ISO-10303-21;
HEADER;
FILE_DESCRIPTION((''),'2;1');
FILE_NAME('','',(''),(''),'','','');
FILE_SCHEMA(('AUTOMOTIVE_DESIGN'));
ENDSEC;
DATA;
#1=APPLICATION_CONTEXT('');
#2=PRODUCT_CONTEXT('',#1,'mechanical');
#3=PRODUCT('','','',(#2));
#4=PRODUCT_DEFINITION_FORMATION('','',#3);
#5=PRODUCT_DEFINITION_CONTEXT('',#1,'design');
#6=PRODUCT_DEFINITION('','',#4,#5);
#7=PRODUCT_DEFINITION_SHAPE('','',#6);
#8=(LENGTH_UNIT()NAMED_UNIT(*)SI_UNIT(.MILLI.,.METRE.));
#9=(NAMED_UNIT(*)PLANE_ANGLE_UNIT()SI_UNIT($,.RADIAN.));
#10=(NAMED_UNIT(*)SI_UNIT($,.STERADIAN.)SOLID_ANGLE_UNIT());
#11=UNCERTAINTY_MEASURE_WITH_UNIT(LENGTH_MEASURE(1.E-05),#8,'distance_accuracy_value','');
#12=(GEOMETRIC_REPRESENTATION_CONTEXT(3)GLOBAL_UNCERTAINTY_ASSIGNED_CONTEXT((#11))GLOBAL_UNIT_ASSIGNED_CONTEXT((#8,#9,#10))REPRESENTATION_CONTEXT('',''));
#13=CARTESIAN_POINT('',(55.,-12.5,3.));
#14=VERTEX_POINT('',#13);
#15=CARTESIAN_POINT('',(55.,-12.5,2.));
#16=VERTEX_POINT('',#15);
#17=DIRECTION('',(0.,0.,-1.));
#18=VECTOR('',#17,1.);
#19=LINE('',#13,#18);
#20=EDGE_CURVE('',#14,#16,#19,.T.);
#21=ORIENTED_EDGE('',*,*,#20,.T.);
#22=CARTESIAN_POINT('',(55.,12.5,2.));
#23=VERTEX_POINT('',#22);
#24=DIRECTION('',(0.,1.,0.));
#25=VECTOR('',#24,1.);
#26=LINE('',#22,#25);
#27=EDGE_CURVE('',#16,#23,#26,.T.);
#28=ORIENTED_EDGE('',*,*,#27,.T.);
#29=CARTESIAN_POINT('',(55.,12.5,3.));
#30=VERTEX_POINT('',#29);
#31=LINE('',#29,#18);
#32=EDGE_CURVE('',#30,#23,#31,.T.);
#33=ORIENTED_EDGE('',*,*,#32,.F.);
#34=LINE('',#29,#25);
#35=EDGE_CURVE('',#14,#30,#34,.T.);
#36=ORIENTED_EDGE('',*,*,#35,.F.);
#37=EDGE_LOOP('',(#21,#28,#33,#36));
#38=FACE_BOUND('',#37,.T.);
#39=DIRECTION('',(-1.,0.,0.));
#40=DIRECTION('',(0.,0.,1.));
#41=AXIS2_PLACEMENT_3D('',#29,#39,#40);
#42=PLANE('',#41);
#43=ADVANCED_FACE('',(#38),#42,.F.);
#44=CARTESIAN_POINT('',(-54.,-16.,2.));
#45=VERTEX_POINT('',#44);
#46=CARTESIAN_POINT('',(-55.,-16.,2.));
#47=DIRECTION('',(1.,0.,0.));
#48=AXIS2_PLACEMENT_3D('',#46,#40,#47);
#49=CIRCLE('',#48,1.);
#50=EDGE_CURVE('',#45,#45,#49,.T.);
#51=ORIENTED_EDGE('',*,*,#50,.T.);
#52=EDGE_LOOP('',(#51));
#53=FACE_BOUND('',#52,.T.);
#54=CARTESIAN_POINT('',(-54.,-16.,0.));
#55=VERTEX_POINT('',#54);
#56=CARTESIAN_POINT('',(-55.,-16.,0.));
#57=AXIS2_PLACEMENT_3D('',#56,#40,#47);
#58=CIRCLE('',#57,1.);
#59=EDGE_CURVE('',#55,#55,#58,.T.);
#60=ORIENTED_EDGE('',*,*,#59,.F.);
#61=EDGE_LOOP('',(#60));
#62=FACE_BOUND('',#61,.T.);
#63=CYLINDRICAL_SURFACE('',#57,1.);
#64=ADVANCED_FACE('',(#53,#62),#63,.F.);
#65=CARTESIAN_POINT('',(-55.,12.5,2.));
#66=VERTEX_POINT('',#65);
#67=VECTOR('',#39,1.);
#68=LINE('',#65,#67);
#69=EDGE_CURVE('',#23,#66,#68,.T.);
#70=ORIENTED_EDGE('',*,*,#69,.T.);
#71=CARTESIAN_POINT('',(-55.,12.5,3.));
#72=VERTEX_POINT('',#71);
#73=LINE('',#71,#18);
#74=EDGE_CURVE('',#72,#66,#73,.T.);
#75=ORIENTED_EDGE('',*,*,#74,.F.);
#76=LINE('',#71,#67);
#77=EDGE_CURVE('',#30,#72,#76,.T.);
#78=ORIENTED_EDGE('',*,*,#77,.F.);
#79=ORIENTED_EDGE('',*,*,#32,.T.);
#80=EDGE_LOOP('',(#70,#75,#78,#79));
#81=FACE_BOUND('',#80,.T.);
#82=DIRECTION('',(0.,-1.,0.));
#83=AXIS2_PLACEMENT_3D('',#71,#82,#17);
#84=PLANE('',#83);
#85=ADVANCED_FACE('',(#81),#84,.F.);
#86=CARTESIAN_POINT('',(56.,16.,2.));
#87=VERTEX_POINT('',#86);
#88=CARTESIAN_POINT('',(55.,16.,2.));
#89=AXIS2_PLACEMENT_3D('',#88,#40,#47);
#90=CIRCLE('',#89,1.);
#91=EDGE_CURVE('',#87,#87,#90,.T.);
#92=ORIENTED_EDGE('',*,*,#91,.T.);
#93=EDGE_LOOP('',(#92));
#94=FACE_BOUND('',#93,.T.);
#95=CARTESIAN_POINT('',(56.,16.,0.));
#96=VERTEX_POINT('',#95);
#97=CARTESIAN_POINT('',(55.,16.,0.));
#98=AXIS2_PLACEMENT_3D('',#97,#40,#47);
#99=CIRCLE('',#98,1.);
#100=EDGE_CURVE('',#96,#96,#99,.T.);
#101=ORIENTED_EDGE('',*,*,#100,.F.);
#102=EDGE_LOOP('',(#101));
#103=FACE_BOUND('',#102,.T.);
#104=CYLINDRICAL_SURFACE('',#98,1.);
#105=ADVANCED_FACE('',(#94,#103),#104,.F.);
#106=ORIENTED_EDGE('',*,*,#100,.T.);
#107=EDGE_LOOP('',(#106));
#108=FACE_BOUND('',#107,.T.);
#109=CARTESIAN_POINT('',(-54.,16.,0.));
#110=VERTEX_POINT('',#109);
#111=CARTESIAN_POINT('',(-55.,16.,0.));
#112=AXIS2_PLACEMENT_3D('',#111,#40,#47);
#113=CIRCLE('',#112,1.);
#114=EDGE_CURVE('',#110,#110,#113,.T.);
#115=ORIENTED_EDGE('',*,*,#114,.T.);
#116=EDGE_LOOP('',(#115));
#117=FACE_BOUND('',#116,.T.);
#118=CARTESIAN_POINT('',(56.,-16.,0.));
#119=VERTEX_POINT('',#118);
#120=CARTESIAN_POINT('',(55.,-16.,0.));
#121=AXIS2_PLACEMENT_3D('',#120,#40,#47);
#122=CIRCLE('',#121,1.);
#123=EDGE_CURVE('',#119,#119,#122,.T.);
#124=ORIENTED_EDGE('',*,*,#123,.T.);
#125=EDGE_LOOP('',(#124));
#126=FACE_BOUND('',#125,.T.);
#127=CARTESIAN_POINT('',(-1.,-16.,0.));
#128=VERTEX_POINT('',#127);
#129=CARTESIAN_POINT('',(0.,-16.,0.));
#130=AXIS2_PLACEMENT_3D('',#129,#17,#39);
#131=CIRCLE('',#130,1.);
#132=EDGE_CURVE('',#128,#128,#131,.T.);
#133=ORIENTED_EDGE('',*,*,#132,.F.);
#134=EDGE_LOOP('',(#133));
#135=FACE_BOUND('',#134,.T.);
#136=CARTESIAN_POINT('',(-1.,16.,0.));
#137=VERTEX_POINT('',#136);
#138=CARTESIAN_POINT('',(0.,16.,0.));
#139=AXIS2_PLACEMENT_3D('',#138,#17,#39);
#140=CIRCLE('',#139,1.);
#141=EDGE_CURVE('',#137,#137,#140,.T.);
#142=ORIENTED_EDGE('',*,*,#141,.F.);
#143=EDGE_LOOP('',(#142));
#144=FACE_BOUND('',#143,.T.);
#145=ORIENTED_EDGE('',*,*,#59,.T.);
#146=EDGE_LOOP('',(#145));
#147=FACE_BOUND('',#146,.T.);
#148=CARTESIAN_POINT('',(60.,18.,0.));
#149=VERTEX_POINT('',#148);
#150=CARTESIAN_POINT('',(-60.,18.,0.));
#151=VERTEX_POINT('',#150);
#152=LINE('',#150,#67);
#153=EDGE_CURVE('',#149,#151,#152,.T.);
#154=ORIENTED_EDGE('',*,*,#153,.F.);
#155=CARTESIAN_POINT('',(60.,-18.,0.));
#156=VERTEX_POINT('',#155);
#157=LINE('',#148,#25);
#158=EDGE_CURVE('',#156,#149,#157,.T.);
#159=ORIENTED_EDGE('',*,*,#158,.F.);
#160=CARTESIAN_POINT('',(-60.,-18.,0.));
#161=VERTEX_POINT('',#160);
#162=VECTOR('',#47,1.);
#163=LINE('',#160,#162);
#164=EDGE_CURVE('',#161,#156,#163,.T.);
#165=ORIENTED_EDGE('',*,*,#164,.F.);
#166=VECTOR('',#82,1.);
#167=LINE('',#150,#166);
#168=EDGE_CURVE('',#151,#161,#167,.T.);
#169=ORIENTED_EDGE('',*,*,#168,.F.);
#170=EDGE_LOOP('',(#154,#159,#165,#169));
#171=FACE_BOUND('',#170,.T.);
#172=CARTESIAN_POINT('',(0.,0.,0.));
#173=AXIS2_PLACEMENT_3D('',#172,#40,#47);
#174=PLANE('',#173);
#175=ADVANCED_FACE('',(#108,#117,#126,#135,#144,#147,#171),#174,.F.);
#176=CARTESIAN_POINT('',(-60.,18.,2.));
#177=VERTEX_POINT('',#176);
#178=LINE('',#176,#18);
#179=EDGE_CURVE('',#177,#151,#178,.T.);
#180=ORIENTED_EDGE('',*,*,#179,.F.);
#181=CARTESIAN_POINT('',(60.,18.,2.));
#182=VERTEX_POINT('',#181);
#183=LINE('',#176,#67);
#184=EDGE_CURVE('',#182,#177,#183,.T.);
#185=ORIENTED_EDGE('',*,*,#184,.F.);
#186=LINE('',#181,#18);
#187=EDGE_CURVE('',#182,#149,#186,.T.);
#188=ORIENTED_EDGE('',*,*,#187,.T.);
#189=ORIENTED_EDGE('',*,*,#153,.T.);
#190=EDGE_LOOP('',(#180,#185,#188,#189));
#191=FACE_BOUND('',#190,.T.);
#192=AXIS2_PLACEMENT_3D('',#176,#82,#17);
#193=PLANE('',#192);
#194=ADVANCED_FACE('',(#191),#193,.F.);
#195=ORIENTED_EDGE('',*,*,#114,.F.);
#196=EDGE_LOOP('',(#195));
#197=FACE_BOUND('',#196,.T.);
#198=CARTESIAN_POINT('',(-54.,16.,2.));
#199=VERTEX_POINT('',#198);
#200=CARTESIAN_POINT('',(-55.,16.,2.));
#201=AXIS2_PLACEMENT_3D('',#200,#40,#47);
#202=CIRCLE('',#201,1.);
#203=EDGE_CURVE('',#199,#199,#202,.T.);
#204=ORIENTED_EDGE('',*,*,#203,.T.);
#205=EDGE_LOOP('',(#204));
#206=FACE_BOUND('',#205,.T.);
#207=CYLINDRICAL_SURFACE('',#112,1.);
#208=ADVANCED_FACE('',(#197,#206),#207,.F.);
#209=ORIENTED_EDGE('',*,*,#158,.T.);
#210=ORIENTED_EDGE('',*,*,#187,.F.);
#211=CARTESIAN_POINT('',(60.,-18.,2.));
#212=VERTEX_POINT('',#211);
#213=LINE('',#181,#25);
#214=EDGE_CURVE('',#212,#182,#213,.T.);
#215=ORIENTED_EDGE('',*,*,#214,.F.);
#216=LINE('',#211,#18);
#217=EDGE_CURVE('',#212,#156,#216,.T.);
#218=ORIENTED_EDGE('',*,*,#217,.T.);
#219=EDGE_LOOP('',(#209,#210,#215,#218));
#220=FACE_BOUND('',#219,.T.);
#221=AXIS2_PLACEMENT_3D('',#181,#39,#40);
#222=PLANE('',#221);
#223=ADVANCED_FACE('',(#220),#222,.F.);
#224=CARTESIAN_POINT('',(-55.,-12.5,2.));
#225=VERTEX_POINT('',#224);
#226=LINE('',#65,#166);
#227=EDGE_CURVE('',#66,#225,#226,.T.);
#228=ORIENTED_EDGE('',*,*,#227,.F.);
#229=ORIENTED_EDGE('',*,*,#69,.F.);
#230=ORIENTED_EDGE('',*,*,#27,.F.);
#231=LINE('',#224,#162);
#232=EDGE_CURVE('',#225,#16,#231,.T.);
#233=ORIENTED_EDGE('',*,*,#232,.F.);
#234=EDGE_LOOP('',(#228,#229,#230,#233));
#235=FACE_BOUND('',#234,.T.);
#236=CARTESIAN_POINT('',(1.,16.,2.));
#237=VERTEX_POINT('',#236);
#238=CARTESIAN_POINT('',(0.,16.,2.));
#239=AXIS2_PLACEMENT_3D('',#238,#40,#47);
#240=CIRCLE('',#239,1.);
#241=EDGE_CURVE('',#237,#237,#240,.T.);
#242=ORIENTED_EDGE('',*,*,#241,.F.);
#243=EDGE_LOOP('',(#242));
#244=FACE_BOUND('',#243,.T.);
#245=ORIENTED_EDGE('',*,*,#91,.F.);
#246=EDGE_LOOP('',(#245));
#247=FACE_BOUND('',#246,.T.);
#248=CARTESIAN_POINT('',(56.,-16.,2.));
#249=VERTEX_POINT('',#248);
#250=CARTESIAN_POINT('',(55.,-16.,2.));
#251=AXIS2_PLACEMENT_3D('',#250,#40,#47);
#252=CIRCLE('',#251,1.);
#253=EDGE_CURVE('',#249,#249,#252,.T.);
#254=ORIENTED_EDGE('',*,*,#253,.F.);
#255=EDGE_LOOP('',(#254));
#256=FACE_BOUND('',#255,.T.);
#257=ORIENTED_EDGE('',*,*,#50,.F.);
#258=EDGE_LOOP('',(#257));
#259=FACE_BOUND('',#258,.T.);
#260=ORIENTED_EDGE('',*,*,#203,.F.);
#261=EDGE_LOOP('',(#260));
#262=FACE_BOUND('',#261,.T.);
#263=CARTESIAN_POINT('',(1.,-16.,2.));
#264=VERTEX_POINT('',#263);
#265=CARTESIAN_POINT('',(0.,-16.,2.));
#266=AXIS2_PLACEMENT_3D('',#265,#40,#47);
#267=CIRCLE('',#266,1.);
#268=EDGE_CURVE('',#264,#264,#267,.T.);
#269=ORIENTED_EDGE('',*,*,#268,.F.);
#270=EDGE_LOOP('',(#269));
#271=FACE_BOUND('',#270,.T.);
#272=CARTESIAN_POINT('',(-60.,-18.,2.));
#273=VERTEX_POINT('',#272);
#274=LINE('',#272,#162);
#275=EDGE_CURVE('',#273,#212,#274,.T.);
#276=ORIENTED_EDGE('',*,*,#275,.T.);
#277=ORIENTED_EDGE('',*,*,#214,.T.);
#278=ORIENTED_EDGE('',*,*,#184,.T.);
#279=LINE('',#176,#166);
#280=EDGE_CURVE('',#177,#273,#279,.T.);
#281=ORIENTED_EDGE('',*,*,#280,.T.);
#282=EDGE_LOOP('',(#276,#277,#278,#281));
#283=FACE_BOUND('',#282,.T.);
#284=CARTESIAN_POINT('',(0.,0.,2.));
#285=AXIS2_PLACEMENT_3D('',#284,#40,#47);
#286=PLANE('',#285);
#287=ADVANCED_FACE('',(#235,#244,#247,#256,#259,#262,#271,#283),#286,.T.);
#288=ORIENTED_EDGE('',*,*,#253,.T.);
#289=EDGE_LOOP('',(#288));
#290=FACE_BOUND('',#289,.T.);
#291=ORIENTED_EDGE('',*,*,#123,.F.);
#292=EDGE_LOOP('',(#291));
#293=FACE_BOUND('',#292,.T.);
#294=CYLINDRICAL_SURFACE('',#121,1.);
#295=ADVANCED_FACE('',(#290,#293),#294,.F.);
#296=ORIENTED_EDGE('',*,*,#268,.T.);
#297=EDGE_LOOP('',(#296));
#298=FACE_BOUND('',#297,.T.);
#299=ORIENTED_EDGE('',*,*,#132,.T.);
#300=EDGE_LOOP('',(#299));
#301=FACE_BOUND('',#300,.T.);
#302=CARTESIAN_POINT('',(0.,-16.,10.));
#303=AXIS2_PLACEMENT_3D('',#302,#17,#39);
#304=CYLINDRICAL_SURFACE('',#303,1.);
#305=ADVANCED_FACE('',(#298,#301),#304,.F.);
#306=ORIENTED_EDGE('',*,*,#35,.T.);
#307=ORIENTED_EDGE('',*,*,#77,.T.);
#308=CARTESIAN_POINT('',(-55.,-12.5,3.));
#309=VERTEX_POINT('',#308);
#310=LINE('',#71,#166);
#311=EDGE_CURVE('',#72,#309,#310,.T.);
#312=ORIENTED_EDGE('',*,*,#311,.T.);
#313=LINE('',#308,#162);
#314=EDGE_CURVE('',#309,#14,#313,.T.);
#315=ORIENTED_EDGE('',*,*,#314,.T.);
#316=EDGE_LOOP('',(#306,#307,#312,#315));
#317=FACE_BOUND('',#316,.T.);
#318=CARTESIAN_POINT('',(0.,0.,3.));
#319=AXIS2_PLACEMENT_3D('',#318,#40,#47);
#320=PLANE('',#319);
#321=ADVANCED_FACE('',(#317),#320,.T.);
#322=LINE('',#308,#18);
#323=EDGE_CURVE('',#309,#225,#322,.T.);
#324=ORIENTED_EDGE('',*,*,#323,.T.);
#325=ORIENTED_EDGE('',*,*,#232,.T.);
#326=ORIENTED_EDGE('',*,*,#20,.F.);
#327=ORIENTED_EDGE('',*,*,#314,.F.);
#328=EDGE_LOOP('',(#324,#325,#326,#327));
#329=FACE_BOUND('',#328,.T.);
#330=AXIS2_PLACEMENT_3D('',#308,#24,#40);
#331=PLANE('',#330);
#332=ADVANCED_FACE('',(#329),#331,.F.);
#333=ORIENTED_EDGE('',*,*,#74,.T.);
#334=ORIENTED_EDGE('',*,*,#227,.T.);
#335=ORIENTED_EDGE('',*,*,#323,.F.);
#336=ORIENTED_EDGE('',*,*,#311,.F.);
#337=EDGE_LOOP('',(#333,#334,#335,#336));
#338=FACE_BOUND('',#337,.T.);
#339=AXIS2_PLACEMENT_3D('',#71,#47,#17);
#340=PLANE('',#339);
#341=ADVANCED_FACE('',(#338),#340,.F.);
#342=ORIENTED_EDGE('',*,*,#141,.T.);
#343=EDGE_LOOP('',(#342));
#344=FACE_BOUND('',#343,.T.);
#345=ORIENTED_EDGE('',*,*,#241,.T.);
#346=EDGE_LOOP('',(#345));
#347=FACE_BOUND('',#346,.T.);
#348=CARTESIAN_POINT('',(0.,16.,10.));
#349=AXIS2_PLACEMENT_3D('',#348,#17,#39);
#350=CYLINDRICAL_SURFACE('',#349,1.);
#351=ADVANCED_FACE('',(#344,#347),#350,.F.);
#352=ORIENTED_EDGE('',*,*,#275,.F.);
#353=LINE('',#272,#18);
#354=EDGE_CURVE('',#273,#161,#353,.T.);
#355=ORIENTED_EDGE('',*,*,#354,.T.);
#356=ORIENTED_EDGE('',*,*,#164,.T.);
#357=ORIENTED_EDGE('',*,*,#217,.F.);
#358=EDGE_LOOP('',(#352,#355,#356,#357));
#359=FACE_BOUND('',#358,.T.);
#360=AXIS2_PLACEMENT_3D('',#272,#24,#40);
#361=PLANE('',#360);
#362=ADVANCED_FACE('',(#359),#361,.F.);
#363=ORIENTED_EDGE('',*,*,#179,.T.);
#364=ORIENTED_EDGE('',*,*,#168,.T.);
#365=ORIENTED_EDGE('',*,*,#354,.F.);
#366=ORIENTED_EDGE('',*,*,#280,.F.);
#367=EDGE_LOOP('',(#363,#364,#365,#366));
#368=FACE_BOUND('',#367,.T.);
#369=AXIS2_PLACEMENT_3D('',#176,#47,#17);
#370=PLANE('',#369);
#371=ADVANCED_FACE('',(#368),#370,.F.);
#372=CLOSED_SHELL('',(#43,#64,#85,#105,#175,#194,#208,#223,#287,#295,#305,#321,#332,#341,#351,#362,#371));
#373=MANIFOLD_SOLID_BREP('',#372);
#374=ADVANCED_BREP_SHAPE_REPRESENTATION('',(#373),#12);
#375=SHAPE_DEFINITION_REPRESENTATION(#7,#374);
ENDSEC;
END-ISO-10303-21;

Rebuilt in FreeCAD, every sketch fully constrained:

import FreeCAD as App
import Part
import Sketcher

V = App.Vector


def add_polygon(sketch, points):
    """Adds a closed chain of lines whose ends are joined by coincident constraints."""
    first, n = sketch.GeometryCount, len(points)
    for a, b in zip(points, points[1:] + points[:1]):
        sketch.addGeometry(Part.LineSegment(App.Vector(*a, 0), App.Vector(*b, 0)), False)
    for i in range(n):
        sketch.addConstraint(Sketcher.Constraint("Coincident", first + i, 2, first + (i + 1) % n, 1))

doc = App.newDocument("Part")
body = doc.addObject("PartDesign::Body", "Body")

sketch1 = body.newObject("Sketcher::SketchObject", "Sketch")
sketch1.AttachmentSupport = (doc.getObject("XY_Plane"), [""])
sketch1.MapMode = "FlatFace"
add_polygon(sketch1, [(-60, 18), (-60, -18), (60, -18), (60, 18)])
sketch1.addConstraint([
    Sketcher.Constraint("Vertical", 0),
    Sketcher.Constraint("Horizontal", 1),
    Sketcher.Constraint("Vertical", 2),
    Sketcher.Constraint("Horizontal", 3),
    Sketcher.Constraint("Symmetric", 0, 2, 2, 2, -1, 1),
    Sketcher.Constraint("DistanceX", 1, 1, 1, 2, 120.0),
    Sketcher.Constraint("DistanceY", 0, 2, 0, 1, 36.0),
])
pad1 = body.newObject("PartDesign::Pad", "Pad")
pad1.Profile = sketch1
pad1.Length = 2

sketch2 = body.newObject("Sketcher::SketchObject", "Sketch001")
sketch2.AttachmentSupport = (doc.getObject("XY_Plane"), [""])
sketch2.MapMode = "FlatFace"
sketch2.AttachmentOffset = App.Placement(V(0, 0, 2), App.Rotation())
add_polygon(sketch2, [(-55, 12), (-55, -12), (55, -12), (55, 12)])
sketch2.addConstraint([
    Sketcher.Constraint("Vertical", 0),
    Sketcher.Constraint("Horizontal", 1),
    Sketcher.Constraint("Vertical", 2),
    Sketcher.Constraint("Horizontal", 3),
    Sketcher.Constraint("Symmetric", 0, 2, 2, 2, -1, 1),
    Sketcher.Constraint("DistanceX", 1, 1, 1, 2, 110.0),
    Sketcher.Constraint("DistanceY", 0, 2, 0, 1, 25.0),
])
pad2 = body.newObject("PartDesign::Pad", "Pad001")
pad2.Profile = sketch2
pad2.Length = 1

sketch3 = body.newObject("Sketcher::SketchObject", "Sketch002")
sketch3.AttachmentSupport = (doc.getObject("XY_Plane"), [""])
sketch3.MapMode = "FlatFace"
sketch3.AttachmentOffset = App.Placement(V(0, 0, 2), App.Rotation())
sketch3.addGeometry([
    Part.Circle(V(-55, 16, 0), V(0, 0, 1), 1),
    Part.Circle(V(-55, -16, 0), V(0, 0, 1), 1),
    Part.Circle(V(55, 16, 0), V(0, 0, 1), 1),
    Part.Circle(V(55, -16, 0), V(0, 0, 1), 1),
], False)
sketch3.addConstraint([
    Sketcher.Constraint("Equal", 0, 1),
    Sketcher.Constraint("Equal", 1, 2),
    Sketcher.Constraint("Equal", 2, 3),
    Sketcher.Constraint("Symmetric", 1, 3, 2, 3, -1, 1),
    Sketcher.Constraint("Symmetric", 0, 3, 3, 3, -1, 1),
    Sketcher.Constraint("Symmetric", 0, 3, 2, 3, -2),
    Sketcher.Constraint("Diameter", 0, 2.0),
    Sketcher.Constraint("DistanceX", 0, 3, -1, 1, 55.0),
    Sketcher.Constraint("DistanceY", -1, 1, 0, 3, 16.0),
])
pocket1 = body.newObject("PartDesign::Pocket", "Pocket")
pocket1.Profile = sketch3
pocket1.Type = "ThroughAll"

sketch4 = body.newObject("Sketcher::SketchObject", "Sketch003")
sketch4.AttachmentSupport = (doc.getObject("XY_Plane"), [""])
sketch4.MapMode = "FlatFace"
sketch4.addGeometry([
    Part.Circle(V(0, 16, 0), V(0, 0, 1), 1),
    Part.Circle(V(0, -16, 0), V(0, 0, 1), 1),
], False)
sketch4.addConstraint([
    Sketcher.Constraint("Equal", 0, 1),
    Sketcher.Constraint("Symmetric", 0, 3, 1, 3, -1, 1),
    Sketcher.Constraint("PointOnObject", 0, 3, -2),
    Sketcher.Constraint("Diameter", 0, 2.0),
    Sketcher.Constraint("DistanceY", -1, 1, 0, 3, 16.0),
])
pocket2 = body.newObject("PartDesign::Pocket", "Pocket001")
pocket2.Profile = sketch4
pocket2.Length = 10
pocket2.Reversed = True

doc.recompute()
